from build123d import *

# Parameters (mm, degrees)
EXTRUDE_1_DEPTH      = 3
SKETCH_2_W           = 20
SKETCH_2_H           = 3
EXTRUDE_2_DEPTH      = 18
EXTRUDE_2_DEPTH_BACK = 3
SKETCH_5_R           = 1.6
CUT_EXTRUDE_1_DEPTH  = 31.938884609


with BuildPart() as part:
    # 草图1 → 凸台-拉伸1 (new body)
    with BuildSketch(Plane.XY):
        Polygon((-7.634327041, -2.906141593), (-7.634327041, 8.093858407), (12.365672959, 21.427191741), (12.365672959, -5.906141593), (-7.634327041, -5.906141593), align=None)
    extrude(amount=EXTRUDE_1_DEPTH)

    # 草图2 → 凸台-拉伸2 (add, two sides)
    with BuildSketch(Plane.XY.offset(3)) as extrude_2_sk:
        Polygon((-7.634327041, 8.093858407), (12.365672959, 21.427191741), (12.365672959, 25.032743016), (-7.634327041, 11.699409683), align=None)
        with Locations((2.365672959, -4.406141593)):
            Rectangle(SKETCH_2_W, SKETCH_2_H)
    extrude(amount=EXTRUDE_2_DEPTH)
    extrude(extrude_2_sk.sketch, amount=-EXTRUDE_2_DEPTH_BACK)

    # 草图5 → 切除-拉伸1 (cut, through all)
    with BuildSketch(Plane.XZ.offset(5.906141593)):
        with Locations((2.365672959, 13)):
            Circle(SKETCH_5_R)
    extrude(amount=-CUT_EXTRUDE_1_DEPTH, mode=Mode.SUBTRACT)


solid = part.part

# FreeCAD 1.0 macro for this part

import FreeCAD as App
import Part
import Sketcher

V = App.Vector


def add_polygon(sketch, points):
    """Adds a closed chain of lines whose ends are joined by coincident constraints."""
    first, n = sketch.GeometryCount, len(points)
    for a, b in zip(points, points[1:] + points[:1]):
        sketch.addGeometry(Part.LineSegment(App.Vector(*a, 0), App.Vector(*b, 0)), False)
    for i in range(n):
        sketch.addConstraint(Sketcher.Constraint("Coincident", first + i, 2, first + (i + 1) % n, 1))

doc = App.newDocument("Part")
body = doc.addObject("PartDesign::Body", "Body")

sketch1 = body.newObject("Sketcher::SketchObject", "Sketch")
sketch1.AttachmentSupport = (doc.getObject("XY_Plane"), [""])
sketch1.MapMode = "FlatFace"
add_polygon(sketch1, [(-8, 8), (-8, -6), (12, -6), (12, 21)])
sketch1.addConstraint([
    Sketcher.Constraint("Vertical", 0),
    Sketcher.Constraint("Horizontal", 1),
    Sketcher.Constraint("Vertical", 2),
    Sketcher.Constraint("DistanceX", 1, 1, 1, 2, 20.0),
    Sketcher.Constraint("DistanceY", 0, 2, 0, 1, 14.0),
    Sketcher.Constraint("Distance", 3, 24.037009),
    Sketcher.Constraint("DistanceY", 0, 2, -1, 1, 5.906142),
    Sketcher.Constraint("DistanceX", 0, 2, -1, 1, 7.634327),
])
pad1 = body.newObject("PartDesign::Pad", "Pad")
pad1.Profile = sketch1
pad1.Length = 3

sketch2 = body.newObject("Sketcher::SketchObject", "Sketch001")
sketch2.AttachmentSupport = (doc.getObject("XY_Plane"), [""])
sketch2.MapMode = "FlatFace"
sketch2.AttachmentOffset = App.Placement(V(0, 0, 3), App.Rotation())
add_polygon(sketch2, [(-7.6, 8.1), (12.4, 21.4), (12.4, 25), (-7.6, 11.7)])
add_polygon(sketch2, [(-7.6, -2.9), (-7.6, -5.9), (12.4, -5.9), (12.4, -2.9)])
sketch2.addConstraint([
    Sketcher.Constraint("Vertical", 1),
    Sketcher.Constraint("Vertical", 3),
    Sketcher.Constraint("Vertical", 4),
    Sketcher.Constraint("Horizontal", 5),
    Sketcher.Constraint("Vertical", 6),
    Sketcher.Constraint("Horizontal", 7),
    Sketcher.Constraint("Parallel", 0, 2),
    Sketcher.Constraint("Vertical", 3, 2, 4, 2),
    Sketcher.Constraint("Vertical", 1, 2, 5, 2),
    Sketcher.Constraint("DistanceX", 5, 1, 5, 2, 20.0),
    Sketcher.Constraint("DistanceY", 4, 2, 4, 1, 3.0),
    Sketcher.Constraint("DistanceY", 4, 2, 3, 2, 14.0),
    Sketcher.Constraint("DistanceY", 1, 1, 1, 2, 3.605551),
    Sketcher.Constraint("Distance", 0, 24.037009),
    Sketcher.Constraint("DistanceY", -1, 1, 0, 2, 21.427192),
    Sketcher.Constraint("DistanceX", -1, 1, 0, 2, 12.365673),
])
pad2 = body.newObject("PartDesign::Pad", "Pad001")
pad2.Profile = sketch2
pad2.Type = "TwoLengths"
pad2.Length = 18
pad2.Length2 = 3

sketch3 = body.newObject("Sketcher::SketchObject", "Sketch002")
sketch3.AttachmentSupport = (doc.getObject("XZ_Plane"), [""])
sketch3.MapMode = "FlatFace"
sketch3.AttachmentOffset = App.Placement(V(0, 0, 5.906142), App.Rotation())
sketch3.addGeometry(Part.Circle(V(2.4, 13, 0), V(0, 0, 1), 1.6), False)
sketch3.addConstraint([
    Sketcher.Constraint("Diameter", 0, 3.2),
    Sketcher.Constraint("DistanceY", -1, 1, 0, 3, 13.0),
    Sketcher.Constraint("DistanceX", -1, 1, 0, 3, 2.365673),
])
pocket1 = body.newObject("PartDesign::Pocket", "Pocket")
pocket1.Profile = sketch3
pocket1.Type = "ThroughAll"

doc.recompute()
